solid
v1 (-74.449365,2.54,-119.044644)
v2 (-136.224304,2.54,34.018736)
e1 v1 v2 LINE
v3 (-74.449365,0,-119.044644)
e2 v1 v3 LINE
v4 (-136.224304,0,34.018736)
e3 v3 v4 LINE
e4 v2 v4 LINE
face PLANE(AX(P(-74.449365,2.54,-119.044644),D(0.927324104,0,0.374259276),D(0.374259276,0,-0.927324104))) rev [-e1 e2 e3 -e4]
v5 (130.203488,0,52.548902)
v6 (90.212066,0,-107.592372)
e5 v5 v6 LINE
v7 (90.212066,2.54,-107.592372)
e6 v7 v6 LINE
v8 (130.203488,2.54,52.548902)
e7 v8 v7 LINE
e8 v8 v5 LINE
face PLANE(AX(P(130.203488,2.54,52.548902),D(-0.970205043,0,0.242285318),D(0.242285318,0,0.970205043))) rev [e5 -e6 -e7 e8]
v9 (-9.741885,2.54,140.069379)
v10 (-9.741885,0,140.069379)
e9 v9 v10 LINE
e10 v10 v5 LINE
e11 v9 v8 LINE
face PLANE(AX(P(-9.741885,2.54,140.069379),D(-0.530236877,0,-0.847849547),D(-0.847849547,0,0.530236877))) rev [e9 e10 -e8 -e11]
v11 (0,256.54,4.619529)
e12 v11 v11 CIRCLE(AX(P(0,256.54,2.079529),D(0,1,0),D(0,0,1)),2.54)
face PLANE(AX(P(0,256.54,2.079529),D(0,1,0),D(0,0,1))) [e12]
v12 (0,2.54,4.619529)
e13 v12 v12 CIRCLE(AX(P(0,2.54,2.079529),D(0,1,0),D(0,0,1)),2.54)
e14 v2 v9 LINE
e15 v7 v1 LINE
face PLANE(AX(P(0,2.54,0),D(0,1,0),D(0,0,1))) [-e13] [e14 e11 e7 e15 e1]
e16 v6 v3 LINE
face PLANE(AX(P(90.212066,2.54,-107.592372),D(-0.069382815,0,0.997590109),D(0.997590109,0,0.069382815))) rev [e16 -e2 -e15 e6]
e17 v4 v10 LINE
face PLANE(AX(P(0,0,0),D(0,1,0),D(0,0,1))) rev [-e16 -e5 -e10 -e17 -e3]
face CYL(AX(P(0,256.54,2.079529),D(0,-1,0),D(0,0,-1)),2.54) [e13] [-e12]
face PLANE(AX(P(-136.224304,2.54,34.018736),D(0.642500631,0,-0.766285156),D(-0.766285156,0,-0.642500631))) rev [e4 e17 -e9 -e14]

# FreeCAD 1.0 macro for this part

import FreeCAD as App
import Part
import Sketcher
Q = App.Units.Quantity

doc = App.newDocument("Part")
body = doc.addObject("PartDesign::Body", "Body")

sketch1 = body.newObject("Sketcher::SketchObject", "Sketch")
sketch1.AttachmentSupport = (doc.getObject("XZ_Plane"), [""])
sketch1.MapMode = "FlatFace"
sketch1.addGeometry([
    Part.LineSegment(App.Vector(90, -108, 0), App.Vector(-74, -119, 0)),
    Part.LineSegment(App.Vector(-74, -119, 0), App.Vector(-136, 34, 0)),
    Part.LineSegment(App.Vector(-136, 34, 0), App.Vector(-10, 140, 0)),
    Part.LineSegment(App.Vector(-10, 140, 0), App.Vector(130, 53, 0)),
    Part.LineSegment(App.Vector(130, 53, 0), App.Vector(90, -108, 0)),
], False)
sketch1.addConstraint([
    Sketcher.Constraint("Coincident", 0, 2, 1, 1),
    Sketcher.Constraint("Coincident", 1, 2, 2, 1),
    Sketcher.Constraint("Coincident", 2, 2, 3, 1),
    Sketcher.Constraint("Coincident", 3, 2, 4, 1),
    Sketcher.Constraint("Coincident", 4, 2, 0, 1),
    Sketcher.Constraint("Equal", 0, 1),
    Sketcher.Constraint("Equal", 1, 2),
    Sketcher.Constraint("Equal", 2, 3),
    Sketcher.Constraint("Equal", 3, 4),
    Sketcher.Constraint("DistanceY", -1, 1, 3, 2, 52.548902),
    Sketcher.Constraint("DistanceY", -1, 1, 2, 2, 140.069379),
    Sketcher.Constraint("DistanceX", 1, 2, 0, 2, 61.774939),
    Sketcher.Constraint("DistanceY", 0, 2, 1, 2, 153.06338),
    Sketcher.Constraint("DistanceX", 1, 2, 2, 2, 126.482419),
    Sketcher.Constraint("DistanceX", 0, 2, -1, 1, 74.449365),
])
pad1 = body.newObject("PartDesign::Pad", "Pad")
pad1.Profile = sketch1
pad1.Length = Q("0.1 in")
pad1.Reversed = True

sketch2 = body.newObject("Sketcher::SketchObject", "Sketch001")
sketch2.AttachmentSupport = (doc.getObject("XZ_Plane"), [""])
sketch2.MapMode = "FlatFace"
sketch2.AttachmentOffset = App.Placement(App.Vector(0, 0, -0.1 * 25.4), App.Rotation())
sketch2.addGeometry(Part.Circle(App.Vector(0, 2.1, 0), App.Vector(0, 0, 1), 2.5), False)
sketch2.addConstraint([
    Sketcher.Constraint("PointOnObject", 0, 3, -2),
    Sketcher.Constraint("Diameter", 0, Q("0.2 in")),
    Sketcher.Constraint("DistanceY", -1, 1, 0, 3, 2.079529),
])
pad2 = body.newObject("PartDesign::Pad", "Pad001")
pad2.Profile = sketch2
pad2.Length = Q("10 in")
pad2.Reversed = True

doc.recompute()
